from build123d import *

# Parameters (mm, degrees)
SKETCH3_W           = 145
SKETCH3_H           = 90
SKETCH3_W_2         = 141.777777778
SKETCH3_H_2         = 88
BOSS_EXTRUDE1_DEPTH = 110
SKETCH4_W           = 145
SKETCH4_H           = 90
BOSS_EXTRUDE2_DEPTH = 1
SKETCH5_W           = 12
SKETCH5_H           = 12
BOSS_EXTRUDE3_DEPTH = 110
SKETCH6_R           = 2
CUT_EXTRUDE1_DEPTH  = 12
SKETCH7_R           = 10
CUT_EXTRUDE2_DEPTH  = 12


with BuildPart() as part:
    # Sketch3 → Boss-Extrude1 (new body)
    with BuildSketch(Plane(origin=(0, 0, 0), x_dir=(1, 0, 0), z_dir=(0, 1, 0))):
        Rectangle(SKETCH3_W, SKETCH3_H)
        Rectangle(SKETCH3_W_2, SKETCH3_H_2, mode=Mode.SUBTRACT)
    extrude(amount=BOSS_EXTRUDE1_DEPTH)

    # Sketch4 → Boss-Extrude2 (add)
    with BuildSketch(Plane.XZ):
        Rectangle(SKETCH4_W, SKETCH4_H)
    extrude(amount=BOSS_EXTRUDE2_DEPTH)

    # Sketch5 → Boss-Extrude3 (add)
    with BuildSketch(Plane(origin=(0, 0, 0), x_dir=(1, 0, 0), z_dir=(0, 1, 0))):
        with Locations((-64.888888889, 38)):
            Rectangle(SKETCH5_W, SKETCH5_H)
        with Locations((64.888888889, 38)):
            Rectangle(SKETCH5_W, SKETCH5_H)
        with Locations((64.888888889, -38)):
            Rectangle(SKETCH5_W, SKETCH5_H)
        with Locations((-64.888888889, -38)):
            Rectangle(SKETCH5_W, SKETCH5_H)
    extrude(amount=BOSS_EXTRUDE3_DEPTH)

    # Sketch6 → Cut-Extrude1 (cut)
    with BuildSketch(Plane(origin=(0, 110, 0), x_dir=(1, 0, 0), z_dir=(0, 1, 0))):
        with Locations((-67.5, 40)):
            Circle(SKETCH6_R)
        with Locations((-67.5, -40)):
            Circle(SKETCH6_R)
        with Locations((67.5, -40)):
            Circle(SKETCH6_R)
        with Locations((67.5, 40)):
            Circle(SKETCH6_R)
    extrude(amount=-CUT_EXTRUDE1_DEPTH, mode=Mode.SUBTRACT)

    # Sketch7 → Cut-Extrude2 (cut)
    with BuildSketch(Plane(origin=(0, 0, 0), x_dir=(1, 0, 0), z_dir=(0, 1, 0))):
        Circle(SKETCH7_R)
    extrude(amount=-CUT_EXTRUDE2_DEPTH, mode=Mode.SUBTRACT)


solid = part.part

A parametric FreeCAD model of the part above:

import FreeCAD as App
import Part
import Sketcher
from FreeCAD import Vector


def add_polygon(sketch, points):
    """Adds a closed chain of lines whose ends are joined by coincident constraints."""
    first, n = sketch.GeometryCount, len(points)
    for a, b in zip(points, points[1:] + points[:1]):
        sketch.addGeometry(Part.LineSegment(App.Vector(*a, 0), App.Vector(*b, 0)), False)
    for i in range(n):
        sketch.addConstraint(Sketcher.Constraint("Coincident", first + i, 2, first + (i + 1) % n, 1))

doc = App.newDocument("Part")
body = doc.addObject("PartDesign::Body", "Body")

sketch1 = body.newObject("Sketcher::SketchObject", "Sketch")
sketch1.AttachmentSupport = (doc.getObject("XZ_Plane"), [""])
sketch1.MapMode = "FlatFace"
add_polygon(sketch1, [(-72, -45), (-72, 45), (72, 45), (72, -45)])
add_polygon(sketch1, [(71, 44), (-71, 44), (-71, -44), (71, -44)])
sketch1.addConstraint([
    Sketcher.Constraint("Vertical", 0),
    Sketcher.Constraint("Horizontal", 1),
    Sketcher.Constraint("Vertical", 2),
    Sketcher.Constraint("Horizontal", 3),
    Sketcher.Constraint("Horizontal", 4),
    Sketcher.Constraint("Vertical", 5),
    Sketcher.Constraint("Horizontal", 6),
    Sketcher.Constraint("Vertical", 7),
    Sketcher.Constraint("Symmetric", 0, 2, 2, 2, -1, 1),
    Sketcher.Constraint("Symmetric", 4, 2, 6, 2, -1, 1),
    Sketcher.Constraint("DistanceX", 1, 1, 1, 2, 145.0),
    Sketcher.Constraint("DistanceY", 0, 1, 0, 2, 90.0),
    Sketcher.Constraint("DistanceY", 5, 2, 5, 1, 88.0),
    Sketcher.Constraint("DistanceX", 4, 2, 4, 1, 141.777778),
])
pad1 = body.newObject("PartDesign::Pad", "Pad")
pad1.Profile = sketch1
pad1.Length = 110
pad1.Reversed = True

sketch2 = body.newObject("Sketcher::SketchObject", "Sketch001")
sketch2.AttachmentSupport = (doc.getObject("XZ_Plane"), [""])
sketch2.MapMode = "FlatFace"
add_polygon(sketch2, [(-72, 45), (-72, -45), (72, -45), (72, 45)])
sketch2.addConstraint([
    Sketcher.Constraint("Vertical", 0),
    Sketcher.Constraint("Horizontal", 1),
    Sketcher.Constraint("Vertical", 2),
    Sketcher.Constraint("Horizontal", 3),
    Sketcher.Constraint("Symmetric", 0, 2, 2, 2, -1, 1),
    Sketcher.Constraint("DistanceX", 1, 1, 1, 2, 145.0),
    Sketcher.Constraint("DistanceY", 0, 2, 0, 1, 90.0),
])
pad2 = body.newObject("PartDesign::Pad", "Pad001")
pad2.Profile = sketch2
pad2.Length = 1

sketch3 = body.newObject("Sketcher::SketchObject", "Sketch002")
sketch3.AttachmentSupport = (doc.getObject("XZ_Plane"), [""])
sketch3.MapMode = "FlatFace"
add_polygon(sketch3, [(-71, -44), (-71, -32), (-59, -32), (-59, -44)])
add_polygon(sketch3, [(59, -44), (59, -32), (71, -32), (71, -44)])
add_polygon(sketch3, [(59, 32), (59, 44), (71, 44), (71, 32)])
add_polygon(sketch3, [(-71, 32), (-71, 44), (-59, 44), (-59, 32)])
sketch3.addConstraint([
    Sketcher.Constraint("Vertical", 0),
    Sketcher.Constraint("Horizontal", 1),
    Sketcher.Constraint("Vertical", 2),
    Sketcher.Constraint("Horizontal", 3),
    Sketcher.Constraint("Vertical", 4),
    Sketcher.Constraint("Horizontal", 5),
    Sketcher.Constraint("Vertical", 6),
    Sketcher.Constraint("Horizontal", 7),
    Sketcher.Constraint("Vertical", 8),
    Sketcher.Constraint("Horizontal", 9),
    Sketcher.Constraint("Vertical", 10),
    Sketcher.Constraint("Horizontal", 11),
    Sketcher.Constraint("Vertical", 12),
    Sketcher.Constraint("Horizontal", 13),
    Sketcher.Constraint("Vertical", 14),
    Sketcher.Constraint("Horizontal", 15),
    Sketcher.Constraint("Symmetric", 2, 2, 8, 2, -1, 1),
    Sketcher.Constraint("Symmetric", 0, 2, 10, 2, -1, 1),
    Sketcher.Constraint("Symmetric", 6, 2, 12, 2, -1, 1),
    Sketcher.Constraint("Symmetric", 4, 2, 14, 2, -1, 1),
    Sketcher.Constraint("Symmetric", 1, 2, 4, 2, -2),
    Sketcher.Constraint("Symmetric", 3, 2, 6, 2, -2),
    Sketcher.Constraint("Equal", 15, 0),
    Sketcher.Constraint("DistanceX", 1, 1, 1, 2, 12.0),
    Sketcher.Constraint("DistanceY", 0, 2, -1, 1, 32.0),
    Sketcher.Constraint("DistanceX", 0, 2, -1, 1, 70.888889),
])
pad3 = body.newObject("PartDesign::Pad", "Pad002")
pad3.Profile = sketch3
pad3.Length = 110
pad3.Reversed = True

sketch4 = body.newObject("Sketcher::SketchObject", "Sketch003")
sketch4.AttachmentSupport = (doc.getObject("XZ_Plane"), [""])
sketch4.MapMode = "FlatFace"
sketch4.AttachmentOffset = App.Placement(Vector(0, 0, -110), App.Rotation())
sketch4.addGeometry([
    Part.Circle(Vector(-67.5, -40, 0), Vector(0, 0, 1), 2),
    Part.Circle(Vector(-67.5, 40, 0), Vector(0, 0, 1), 2),
    Part.Circle(Vector(67.5, 40, 0), Vector(0, 0, 1), 2),
    Part.Circle(Vector(67.5, -40, 0), Vector(0, 0, 1), 2),
], False)
sketch4.addConstraint([
    Sketcher.Constraint("Equal", 0, 1),
    Sketcher.Constraint("Equal", 1, 2),
    Sketcher.Constraint("Equal", 2, 3),
    Sketcher.Constraint("Symmetric", 0, 3, 2, 3, -1, 1),
    Sketcher.Constraint("Symmetric", 1, 3, 3, 3, -1, 1),
    Sketcher.Constraint("Symmetric", 1, 3, 2, 3, -2),
    Sketcher.Constraint("Diameter", 0, 4.0),
    Sketcher.Constraint("DistanceY", 0, 3, -1, 1, 40.0),
    Sketcher.Constraint("DistanceX", 1, 3, 2, 3, 135.0),
])
pocket1 = body.newObject("PartDesign::Pocket", "Pocket")
pocket1.Profile = sketch4
pocket1.Length = 12
pocket1.Reversed = True

sketch5 = body.newObject("Sketcher::SketchObject", "Sketch004")
sketch5.AttachmentSupport = (doc.getObject("XZ_Plane"), [""])
sketch5.MapMode = "FlatFace"
sketch5.addGeometry(Part.Circle(Vector(0, 0, 0), Vector(0, 0, 1), 10), False)
sketch5.addConstraint([
    Sketcher.Constraint("Coincident", 0, 3, -1, 1),
    Sketcher.Constraint("Diameter", 0, 20.0),
])
pocket2 = body.newObject("PartDesign::Pocket", "Pocket001")
pocket2.Profile = sketch5
pocket2.Length = 12
pocket2.Reversed = True

doc.recompute()
